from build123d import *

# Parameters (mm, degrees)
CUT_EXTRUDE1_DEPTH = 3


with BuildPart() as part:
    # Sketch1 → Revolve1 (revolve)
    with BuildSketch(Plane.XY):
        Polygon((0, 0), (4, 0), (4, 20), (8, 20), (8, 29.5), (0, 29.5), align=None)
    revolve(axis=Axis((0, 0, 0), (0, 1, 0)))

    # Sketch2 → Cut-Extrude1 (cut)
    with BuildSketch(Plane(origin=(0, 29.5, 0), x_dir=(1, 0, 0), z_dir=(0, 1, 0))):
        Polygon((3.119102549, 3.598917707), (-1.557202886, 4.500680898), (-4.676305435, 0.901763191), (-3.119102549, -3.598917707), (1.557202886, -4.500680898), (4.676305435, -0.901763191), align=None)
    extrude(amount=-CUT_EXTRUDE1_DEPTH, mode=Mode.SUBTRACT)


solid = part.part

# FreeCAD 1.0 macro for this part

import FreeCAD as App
import Part
import Sketcher
from FreeCAD import Vector


def add_polygon(sketch, points):
    """Adds a closed chain of lines whose ends are joined by coincident constraints."""
    first, n = sketch.GeometryCount, len(points)
    for a, b in zip(points, points[1:] + points[:1]):
        sketch.addGeometry(Part.LineSegment(App.Vector(*a, 0), App.Vector(*b, 0)), False)
    for i in range(n):
        sketch.addConstraint(Sketcher.Constraint("Coincident", first + i, 2, first + (i + 1) % n, 1))

doc = App.newDocument("Part")
body = doc.addObject("PartDesign::Body", "Body")

# Sketch on XY plane
sketch1 = body.newObject("Sketcher::SketchObject", "Sketch")
sketch1.AttachmentSupport = (doc.getObject("XY_Plane"), [""])
sketch1.MapMode = "FlatFace"
add_polygon(sketch1, [(0, 0), (4, 0), (4, 20), (8, 20), (8, 29.5), (0, 29.5)])  # lines 0-5
sketch1.addConstraint(Sketcher.Constraint("Horizontal", 0))
sketch1.addConstraint(Sketcher.Constraint("Vertical", 1))
sketch1.addConstraint(Sketcher.Constraint("Horizontal", 2))
sketch1.addConstraint(Sketcher.Constraint("Vertical", 3))
sketch1.addConstraint(Sketcher.Constraint("Horizontal", 4))
sketch1.addConstraint(Sketcher.Constraint("Vertical", 5))
sketch1.addConstraint(Sketcher.Constraint("Coincident", 5, 2, -1, 1))
sketch1.addConstraint(Sketcher.Constraint("Equal", 0, 2))
sketch1.addConstraint(Sketcher.Constraint("DistanceX", 0, 1, 0, 2, 4.0))
sketch1.addConstraint(Sketcher.Constraint("DistanceY", 1, 1, 1, 2, 20.0))
sketch1.addConstraint(Sketcher.Constraint("DistanceY", 3, 1, 3, 2, 9.5))
revolution = body.newObject("PartDesign::Revolution", "Revolution")
revolution.Profile = sketch1
revolution.ReferenceAxis = (sketch1, ["V_Axis"])
revolution.Angle = 360

# Sketch on XZ plane
sketch2 = body.newObject("Sketcher::SketchObject", "Sketch001")
sketch2.AttachmentSupport = (doc.getObject("XZ_Plane"), [""])
sketch2.MapMode = "FlatFace"
sketch2.AttachmentOffset = App.Placement(Vector(0, 0, -29.5), App.Rotation())
add_polygon(sketch2, [(3.119103, -3.598918), (-1.557203, -4.500681), (-4.676305, -0.901763), (-3.119103, 3.598918), (1.557203, 4.500681), (4.676305, 0.901763)])  # lines 0-5
sketch2.addConstraint(Sketcher.Constraint("Symmetric", 0, 2, 3, 2, -1, 1))
sketch2.addConstraint(Sketcher.Constraint("Symmetric", 1, 2, 4, 2, -1, 1))
sketch2.addConstraint(Sketcher.Constraint("Symmetric", 2, 2, 5, 2, -1, 1))
sketch2.addConstraint(Sketcher.Constraint("Equal", 0, 1))
sketch2.addConstraint(Sketcher.Constraint("Equal", 1, 2))
sketch2.addConstraint(Sketcher.Constraint("DistanceX", 2, 2, 0, 2, 1.5619))
sketch2.addConstraint(Sketcher.Constraint("DistanceY", 0, 2, 2, 2, 8.099599))
sketch2.addConstraint(Sketcher.Constraint("Distance", 0, 4.762458))
sketch2.addConstraint(Sketcher.Constraint("DistanceY", 0, 2, -1, 1, 4.500681))
pocket1 = body.newObject("PartDesign::Pocket", "Pocket")
pocket1.Profile = sketch2
pocket1.Length = 3
pocket1.Reversed = True

doc.recompute()
